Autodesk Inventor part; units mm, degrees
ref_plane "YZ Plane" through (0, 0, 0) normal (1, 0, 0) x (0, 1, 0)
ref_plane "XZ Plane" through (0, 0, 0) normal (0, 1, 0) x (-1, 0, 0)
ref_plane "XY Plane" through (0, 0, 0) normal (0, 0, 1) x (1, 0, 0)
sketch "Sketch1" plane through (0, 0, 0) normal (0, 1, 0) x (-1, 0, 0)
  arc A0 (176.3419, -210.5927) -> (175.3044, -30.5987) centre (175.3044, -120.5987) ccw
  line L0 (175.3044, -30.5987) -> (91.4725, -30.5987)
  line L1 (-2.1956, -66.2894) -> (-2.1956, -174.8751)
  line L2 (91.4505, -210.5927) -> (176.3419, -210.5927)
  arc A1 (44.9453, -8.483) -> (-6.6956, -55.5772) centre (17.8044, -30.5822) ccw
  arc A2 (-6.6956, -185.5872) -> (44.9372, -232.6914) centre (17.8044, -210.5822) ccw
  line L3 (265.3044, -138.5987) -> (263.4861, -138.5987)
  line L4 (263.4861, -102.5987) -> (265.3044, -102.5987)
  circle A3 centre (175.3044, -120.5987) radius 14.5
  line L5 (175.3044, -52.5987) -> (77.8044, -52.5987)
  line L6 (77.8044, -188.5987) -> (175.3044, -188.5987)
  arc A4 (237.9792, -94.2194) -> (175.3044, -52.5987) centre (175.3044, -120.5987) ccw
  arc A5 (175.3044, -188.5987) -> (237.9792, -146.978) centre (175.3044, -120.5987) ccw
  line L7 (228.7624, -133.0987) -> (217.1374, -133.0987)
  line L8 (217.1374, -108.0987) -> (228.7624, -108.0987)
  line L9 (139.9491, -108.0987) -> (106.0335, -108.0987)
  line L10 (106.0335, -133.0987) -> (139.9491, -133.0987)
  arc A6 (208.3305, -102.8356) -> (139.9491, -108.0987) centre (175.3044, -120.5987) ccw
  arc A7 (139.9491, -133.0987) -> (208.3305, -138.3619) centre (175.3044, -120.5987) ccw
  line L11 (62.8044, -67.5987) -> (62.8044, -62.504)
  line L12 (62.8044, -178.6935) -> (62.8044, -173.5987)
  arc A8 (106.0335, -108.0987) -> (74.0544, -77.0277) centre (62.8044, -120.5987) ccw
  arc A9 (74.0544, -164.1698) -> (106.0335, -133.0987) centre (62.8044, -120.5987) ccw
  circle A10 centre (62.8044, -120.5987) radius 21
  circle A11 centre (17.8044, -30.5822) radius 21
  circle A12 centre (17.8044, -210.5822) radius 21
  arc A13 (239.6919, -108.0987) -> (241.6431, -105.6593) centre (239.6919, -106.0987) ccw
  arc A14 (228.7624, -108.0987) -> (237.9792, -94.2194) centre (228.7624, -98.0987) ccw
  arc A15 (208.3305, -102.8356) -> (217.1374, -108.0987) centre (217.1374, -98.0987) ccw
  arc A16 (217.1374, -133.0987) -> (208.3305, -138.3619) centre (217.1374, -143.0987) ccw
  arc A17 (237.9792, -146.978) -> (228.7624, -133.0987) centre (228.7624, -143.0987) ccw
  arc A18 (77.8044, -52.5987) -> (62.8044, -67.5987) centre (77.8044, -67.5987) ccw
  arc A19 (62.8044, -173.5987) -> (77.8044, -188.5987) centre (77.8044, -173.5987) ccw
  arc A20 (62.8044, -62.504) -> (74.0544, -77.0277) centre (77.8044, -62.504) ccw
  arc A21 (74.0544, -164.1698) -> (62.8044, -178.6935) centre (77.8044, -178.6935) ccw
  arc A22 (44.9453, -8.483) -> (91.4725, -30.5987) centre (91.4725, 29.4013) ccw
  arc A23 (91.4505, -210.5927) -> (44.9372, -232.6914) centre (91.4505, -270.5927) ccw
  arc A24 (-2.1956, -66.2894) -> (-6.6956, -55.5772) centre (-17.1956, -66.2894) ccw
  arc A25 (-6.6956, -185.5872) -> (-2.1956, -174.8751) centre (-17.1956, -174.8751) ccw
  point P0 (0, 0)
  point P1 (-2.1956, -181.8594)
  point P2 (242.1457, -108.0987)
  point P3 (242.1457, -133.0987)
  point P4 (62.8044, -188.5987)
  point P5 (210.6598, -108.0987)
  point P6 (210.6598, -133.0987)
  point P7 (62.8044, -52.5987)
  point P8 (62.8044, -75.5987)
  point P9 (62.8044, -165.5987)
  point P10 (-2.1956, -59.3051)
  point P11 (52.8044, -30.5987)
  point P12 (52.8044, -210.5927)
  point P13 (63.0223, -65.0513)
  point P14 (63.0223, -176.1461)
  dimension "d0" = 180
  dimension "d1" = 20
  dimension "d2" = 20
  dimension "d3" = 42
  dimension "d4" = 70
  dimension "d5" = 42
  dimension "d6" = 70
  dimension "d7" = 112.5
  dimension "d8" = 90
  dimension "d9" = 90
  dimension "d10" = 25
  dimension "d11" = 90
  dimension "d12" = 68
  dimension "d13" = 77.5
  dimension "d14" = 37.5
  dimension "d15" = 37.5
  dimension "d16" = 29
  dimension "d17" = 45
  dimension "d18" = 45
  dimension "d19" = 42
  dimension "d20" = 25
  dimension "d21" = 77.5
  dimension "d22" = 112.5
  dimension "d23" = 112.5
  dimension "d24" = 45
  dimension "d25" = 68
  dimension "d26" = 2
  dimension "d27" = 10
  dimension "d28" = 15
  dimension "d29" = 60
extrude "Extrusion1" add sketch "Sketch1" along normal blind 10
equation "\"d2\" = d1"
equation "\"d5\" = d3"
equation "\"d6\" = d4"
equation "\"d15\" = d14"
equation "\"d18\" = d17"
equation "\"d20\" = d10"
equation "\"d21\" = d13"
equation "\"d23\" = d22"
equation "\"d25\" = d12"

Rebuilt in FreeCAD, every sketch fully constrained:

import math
import FreeCAD as App
import Part
import Sketcher
from FreeCAD import Vector
Q = App.Units.Quantity

doc = App.newDocument("Part")
body = doc.addObject("PartDesign::Body", "Body")

# Sketch on XZ plane
sketch1 = body.newObject("Sketcher::SketchObject", "Sketch")
sketch1.AttachmentSupport = (doc.getObject("XZ_Plane"), [""])
sketch1.MapMode = "FlatFace"
sketch1.addGeometry(Part.LineSegment(Vector(-91.5, -210.6, 0), Vector(-176.3, -210.6, 0)), False)
sketch1.addGeometry(Part.ArcOfCircle(Part.Circle(Vector(-175.3, -120.6, 0), Vector(0, 0, 1), 90), math.radians(90), math.radians(269)), False)
sketch1.addGeometry(Part.LineSegment(Vector(-175.3, -30.6, 0), Vector(-91.5, -30.6, 0)), False)
sketch1.addGeometry(Part.ArcOfCircle(Part.Circle(Vector(-91.5, 29.4, 0), Vector(0, 0, 1), 60), math.radians(-90), math.radians(-39)), False)
sketch1.addGeometry(Part.ArcOfCircle(Part.Circle(Vector(-17.8, -30.6, 0), Vector(0, 0, 1), 35), math.radians(-46), math.radians(141)), False)
sketch1.addGeometry(Part.ArcOfCircle(Part.Circle(Vector(17.2, -66.3, 0), Vector(0, 0, 1), 15), math.radians(134), math.radians(180)), False)
sketch1.addGeometry(Part.LineSegment(Vector(2.2, -66.3, 0), Vector(2.2, -174.9, 0)), False)
sketch1.addGeometry(Part.ArcOfCircle(Part.Circle(Vector(17.2, -174.9, 0), Vector(0, 0, 1), 15), math.radians(180), math.radians(226)), False)
sketch1.addGeometry(Part.ArcOfCircle(Part.Circle(Vector(-17.8, -210.6, 0), Vector(0, 0, 1), 35), math.radians(-141), math.radians(46)), False)
sketch1.addGeometry(Part.ArcOfCircle(Part.Circle(Vector(-91.5, -270.6, 0), Vector(0, 0, 1), 60), math.radians(39), math.radians(90)), False)
sketch1.addGeometry(Part.Circle(Vector(-17.8, -210.6, 0), Vector(0, 0, 1), 21), False)
sketch1.addGeometry(Part.ArcOfCircle(Part.Circle(Vector(-77.8, -173.6, 0), Vector(0, 0, 1), 15), math.radians(-9.78), math.radians(0)), False)
sketch1.addGeometry(Part.ArcOfCircle(Part.Circle(Vector(-77.8, -178.7, 0), Vector(0, 0, 1), 15), math.radians(0), math.radians(9.78)), False)
sketch1.addGeometry(Part.LineSegment(Vector(-62.8, -178.7, 0), Vector(-62.8, -173.6, 0)), False)
sketch1.addGeometry(Part.Circle(Vector(-62.8, -120.6, 0), Vector(0, 0, 1), 21), False)
sketch1.addGeometry(Part.LineSegment(Vector(-175.3, -188.6, 0), Vector(-77.8, -188.6, 0)), False)
sketch1.addGeometry(Part.ArcOfCircle(Part.Circle(Vector(-77.8, -173.6, 0), Vector(0, 0, 1), 15), math.radians(-90), math.radians(-10)), False)
sketch1.addGeometry(Part.ArcOfCircle(Part.Circle(Vector(-77.8, -178.7, 0), Vector(0, 0, 1), 15), math.radians(10), math.radians(76)), False)
sketch1.addGeometry(Part.ArcOfCircle(Part.Circle(Vector(-62.8, -120.6, 0), Vector(0, 0, 1), 45), math.radians(-164), math.radians(-104)), False)
sketch1.addGeometry(Part.LineSegment(Vector(-106, -133.1, 0), Vector(-139.9, -133.1, 0)), False)
sketch1.addGeometry(Part.ArcOfCircle(Part.Circle(Vector(-175.3, -120.6, 0), Vector(0, 0, 1), 37.5), math.radians(-152), math.radians(-19)), False)
sketch1.addGeometry(Part.ArcOfCircle(Part.Circle(Vector(-217.1, -143.1, 0), Vector(0, 0, 1), 10), math.radians(28), math.radians(90)), False)
sketch1.addGeometry(Part.LineSegment(Vector(-217.1, -133.1, 0), Vector(-228.8, -133.1, 0)), False)
sketch1.addGeometry(Part.ArcOfCircle(Part.Circle(Vector(-228.8, -143.1, 0), Vector(0, 0, 1), 10), math.radians(90), math.radians(203)), False)
sketch1.addGeometry(Part.ArcOfCircle(Part.Circle(Vector(-175.3, -120.6, 0), Vector(0, 0, 1), 68), math.radians(-157), math.radians(-90)), False)
sketch1.addGeometry(Part.Circle(Vector(-175.3, -120.6, 0), Vector(0, 0, 1), 14.5), False)
sketch1.addGeometry(Part.ArcOfCircle(Part.Circle(Vector(-77.8, -62.5, 0), Vector(0, 0, 1), 15), math.radians(-9.78), math.radians(0)), False)
sketch1.addGeometry(Part.ArcOfCircle(Part.Circle(Vector(-77.8, -67.6, 0), Vector(0, 0, 1), 15), math.radians(0), math.radians(9.78)), False)
sketch1.addGeometry(Part.LineSegment(Vector(-62.8, -67.6, 0), Vector(-62.8, -62.5, 0)), False)
sketch1.addGeometry(Part.Circle(Vector(-17.8, -30.6, 0), Vector(0, 0, 1), 21), False)
sketch1.addGeometry(Part.LineSegment(Vector(-77.8, -52.6, 0), Vector(-175.3, -52.6, 0)), False)
sketch1.addGeometry(Part.ArcOfCircle(Part.Circle(Vector(-175.3, -120.6, 0), Vector(0, 0, 1), 68), math.radians(90), math.radians(157)), False)
sketch1.addGeometry(Part.ArcOfCircle(Part.Circle(Vector(-228.8, -98.1, 0), Vector(0, 0, 1), 10), math.radians(157), math.radians(270)), False)
sketch1.addGeometry(Part.LineSegment(Vector(-228.8, -108.1, 0), Vector(-217.1, -108.1, 0)), False)
sketch1.addGeometry(Part.ArcOfCircle(Part.Circle(Vector(-217.1, -98.1, 0), Vector(0, 0, 1), 10), math.radians(-90), math.radians(-28)), False)
sketch1.addGeometry(Part.ArcOfCircle(Part.Circle(Vector(-175.3, -120.6, 0), Vector(0, 0, 1), 37.5), math.radians(19), math.radians(152)), False)
sketch1.addGeometry(Part.LineSegment(Vector(-139.9, -108.1, 0), Vector(-106, -108.1, 0)), False)
sketch1.addGeometry(Part.ArcOfCircle(Part.Circle(Vector(-62.8, -120.6, 0), Vector(0, 0, 1), 45), math.radians(104), math.radians(164)), False)
sketch1.addGeometry(Part.ArcOfCircle(Part.Circle(Vector(-77.8, -62.5, 0), Vector(0, 0, 1), 15), math.radians(-76), math.radians(-10)), False)
sketch1.addGeometry(Part.ArcOfCircle(Part.Circle(Vector(-77.8, -67.6, 0), Vector(0, 0, 1), 15), math.radians(10), math.radians(90)), False)
sketch1.addConstraint(Sketcher.Constraint("Coincident", 0, 2, 1, 2))
sketch1.addConstraint(Sketcher.Constraint("Tangent", 1, 1, 2, 1))
sketch1.addConstraint(Sketcher.Constraint("Tangent", 2, 2, 3, 1))
sketch1.addConstraint(Sketcher.Constraint("Tangent", 3, 2, 4, 2))
sketch1.addConstraint(Sketcher.Constraint("Tangent", 4, 1, 5, 1))
sketch1.addConstraint(Sketcher.Constraint("Tangent", 5, 2, 6, 1))
sketch1.addConstraint(Sketcher.Constraint("Tangent", 6, 2, 7, 1))
sketch1.addConstraint(Sketcher.Constraint("Tangent", 7, 2, 8, 2))
sketch1.addConstraint(Sketcher.Constraint("Tangent", 8, 1, 9, 1))
sketch1.addConstraint(Sketcher.Constraint("Tangent", 9, 2, 0, 1))
sketch1.addConstraint(Sketcher.Constraint("Coincident", 11, 1, 12, 2))
sketch1.addConstraint(Sketcher.Constraint("Tangent", 12, 1, 13, 1))
sketch1.addConstraint(Sketcher.Constraint("Tangent", 13, 2, 11, 2))
sketch1.addConstraint(Sketcher.Constraint("Tangent", 15, 2, 16, 1))
sketch1.addConstraint(Sketcher.Constraint("Coincident", 16, 2, 17, 1))
sketch1.addConstraint(Sketcher.Constraint("Tangent", 17, 2, 18, 2))
sketch1.addConstraint(Sketcher.Constraint("Coincident", 18, 1, 19, 1))
sketch1.addConstraint(Sketcher.Constraint("Coincident", 19, 2, 20, 2))
sketch1.addConstraint(Sketcher.Constraint("Tangent", 20, 1, 21, 1))
sketch1.addConstraint(Sketcher.Constraint("Tangent", 21, 2, 22, 1))
sketch1.addConstraint(Sketcher.Constraint("Tangent", 22, 2, 23, 1))
sketch1.addConstraint(Sketcher.Constraint("Tangent", 23, 2, 24, 1))
sketch1.addConstraint(Sketcher.Constraint("Tangent", 24, 2, 15, 1))
sketch1.addConstraint(Sketcher.Constraint("Coincident", 26, 1, 27, 2))
sketch1.addConstraint(Sketcher.Constraint("Tangent", 27, 1, 28, 1))
sketch1.addConstraint(Sketcher.Constraint("Tangent", 28, 2, 26, 2))
sketch1.addConstraint(Sketcher.Constraint("Tangent", 30, 2, 31, 1))
sketch1.addConstraint(Sketcher.Constraint("Tangent", 31, 2, 32, 1))
sketch1.addConstraint(Sketcher.Constraint("Tangent", 32, 2, 33, 1))
sketch1.addConstraint(Sketcher.Constraint("Tangent", 33, 2, 34, 1))
sketch1.addConstraint(Sketcher.Constraint("Tangent", 34, 2, 35, 2))
sketch1.addConstraint(Sketcher.Constraint("Coincident", 35, 1, 36, 1))
sketch1.addConstraint(Sketcher.Constraint("Coincident", 36, 2, 37, 2))
sketch1.addConstraint(Sketcher.Constraint("Tangent", 37, 1, 38, 1))
sketch1.addConstraint(Sketcher.Constraint("Coincident", 38, 2, 39, 1))
sketch1.addConstraint(Sketcher.Constraint("Tangent", 39, 2, 30, 1))
sketch1.addConstraint(Sketcher.Constraint("Horizontal", 0))
sketch1.addConstraint(Sketcher.Constraint("Horizontal", 2))
sketch1.addConstraint(Sketcher.Constraint("Vertical", 6))
sketch1.addConstraint(Sketcher.Constraint("Vertical", 13))
sketch1.addConstraint(Sketcher.Constraint("Horizontal", 15))
sketch1.addConstraint(Sketcher.Constraint("Horizontal", 19))
sketch1.addConstraint(Sketcher.Constraint("Horizontal", 22))
sketch1.addConstraint(Sketcher.Constraint("Vertical", 28))
sketch1.addConstraint(Sketcher.Constraint("Horizontal", 30))
sketch1.addConstraint(Sketcher.Constraint("Horizontal", 33))
sketch1.addConstraint(Sketcher.Constraint("Horizontal", 36))
sketch1.addConstraint(Sketcher.Constraint("Coincident", 10, 3, 8, 3))
sketch1.addConstraint(Sketcher.Constraint("Coincident", 16, 3, 11, 3))
sketch1.addConstraint(Sketcher.Constraint("Coincident", 17, 3, 12, 3))
sketch1.addConstraint(Sketcher.Constraint("Coincident", 18, 3, 14, 3))
sketch1.addConstraint(Sketcher.Constraint("Coincident", 20, 3, 1, 3))
sketch1.addConstraint(Sketcher.Constraint("Coincident", 24, 3, 1, 3))
sketch1.addConstraint(Sketcher.Constraint("Coincident", 25, 3, 1, 3))
sketch1.addConstraint(Sketcher.Constraint("Coincident", 29, 3, 4, 3))
sketch1.addConstraint(Sketcher.Constraint("Coincident", 31, 3, 1, 3))
sketch1.addConstraint(Sketcher.Constraint("Coincident", 35, 3, 1, 3))
sketch1.addConstraint(Sketcher.Constraint("Coincident", 37, 3, 14, 3))
sketch1.addConstraint(Sketcher.Constraint("Coincident", 38, 3, 26, 3))
sketch1.addConstraint(Sketcher.Constraint("Coincident", 39, 3, 27, 3))
sketch1.addConstraint(Sketcher.Constraint("Coincident", 16, 2, 11, 1))
sketch1.addConstraint(Sketcher.Constraint("Coincident", 38, 2, 26, 1))
sketch1.addConstraint(Sketcher.Constraint("Equal", 5, 7))
sketch1.addConstraint(Sketcher.Constraint("Equal", 4, 8))
sketch1.addConstraint(Sketcher.Constraint("Equal", 3, 9))
sketch1.addConstraint(Sketcher.Constraint("Equal", 7, 11))
sketch1.addConstraint(Sketcher.Constraint("Equal", 11, 12))
sketch1.addConstraint(Sketcher.Constraint("Equal", 10, 14))
sketch1.addConstraint(Sketcher.Constraint("Equal", 21, 23))
sketch1.addConstraint(Sketcher.Constraint("Equal", 17, 26))
sketch1.addConstraint(Sketcher.Constraint("Equal", 26, 27))
sketch1.addConstraint(Sketcher.Constraint("Equal", 14, 29))
sketch1.addConstraint(Sketcher.Constraint("Equal", 24, 31))
sketch1.addConstraint(Sketcher.Constraint("Equal", 23, 32))
sketch1.addConstraint(Sketcher.Constraint("Equal", 32, 34))
sketch1.addConstraint(Sketcher.Constraint("Equal", 20, 35))
sketch1.addConstraint(Sketcher.Constraint("Equal", 18, 37))
sketch1.addConstraint(Sketcher.Constraint("Horizontal", 1, 3, 14, 3))
sketch1.addConstraint(Sketcher.Constraint("Horizontal", 19, 2, 21, 2))
sketch1.addConstraint(Sketcher.Constraint("Horizontal", 33, 2, 35, 1))
sketch1.addConstraint(Sketcher.Constraint("Vertical", 4, 3, 8, 3))
sketch1.addConstraint(Sketcher.Constraint("Vertical", 17, 3, 26, 3))
sketch1.addConstraint(Sketcher.Constraint("Vertical", 23, 3, 32, 3))
sketch1.addConstraint(Sketcher.Constraint("Vertical", 37, 3, 12, 1))
sketch1.addConstraint(Sketcher.Constraint("Diameter", 10, Q("42 mm")))
sketch1.addConstraint(Sketcher.Constraint("Diameter", 25, Q("29 mm")))
sketch1.addConstraint(Sketcher.Constraint("Radius", 1, Q("90 mm")))
sketch1.addConstraint(Sketcher.Constraint("Radius", 3, Q("60 mm")))
sketch1.addConstraint(Sketcher.Constraint("Radius", 4, Q("35 mm")))
sketch1.addConstraint(Sketcher.Constraint("Radius", 5, Q("15 mm")))
sketch1.addConstraint(Sketcher.Constraint("Radius", 18, Q("45 mm")))
sketch1.addConstraint(Sketcher.Constraint("Radius", 21, Q("10 mm")))
sketch1.addConstraint(Sketcher.Constraint("Radius", 24, Q("68 mm")))
sketch1.addConstraint(Sketcher.Constraint("Radius", 20, Q("37.5 mm")))
sketch1.addConstraint(Sketcher.Constraint("DistanceX", 15, 1, 15, 2, Q("97.5 mm")))
sketch1.addConstraint(Sketcher.Constraint("DistanceX", 2, 1, 2, 2, Q("83.832 mm")))
sketch1.addConstraint(Sketcher.Constraint("DistanceX", 22, 2, 22, 1, Q("11.625 mm")))
sketch1.addConstraint(Sketcher.Constraint("DistanceX", 0, 2, 0, 1, Q("84.8914 mm")))
sketch1.addConstraint(Sketcher.Constraint("DistanceY", 6, 2, 6, 1, Q("108.5857 mm")))
sketch1.addConstraint(Sketcher.Constraint("DistanceY", 7, 3, -1, 1, Q("174.875 mm")))
sketch1.addConstraint(Sketcher.Constraint("DistanceY", 26, 3, -1, 1, Q("62.504 mm")))
sketch1.addConstraint(Sketcher.Constraint("DistanceX", 0, 2, -1, 1, Q("176.342 mm")))
sketch1.addConstraint(Sketcher.Constraint("DistanceY", 3, 2, -1, 1, Q("8.483 mm")))
pad1 = body.newObject("PartDesign::Pad", "Pad")
pad1.Profile = sketch1
pad1.Length = 10
pad1.Reversed = True

doc.recompute()
